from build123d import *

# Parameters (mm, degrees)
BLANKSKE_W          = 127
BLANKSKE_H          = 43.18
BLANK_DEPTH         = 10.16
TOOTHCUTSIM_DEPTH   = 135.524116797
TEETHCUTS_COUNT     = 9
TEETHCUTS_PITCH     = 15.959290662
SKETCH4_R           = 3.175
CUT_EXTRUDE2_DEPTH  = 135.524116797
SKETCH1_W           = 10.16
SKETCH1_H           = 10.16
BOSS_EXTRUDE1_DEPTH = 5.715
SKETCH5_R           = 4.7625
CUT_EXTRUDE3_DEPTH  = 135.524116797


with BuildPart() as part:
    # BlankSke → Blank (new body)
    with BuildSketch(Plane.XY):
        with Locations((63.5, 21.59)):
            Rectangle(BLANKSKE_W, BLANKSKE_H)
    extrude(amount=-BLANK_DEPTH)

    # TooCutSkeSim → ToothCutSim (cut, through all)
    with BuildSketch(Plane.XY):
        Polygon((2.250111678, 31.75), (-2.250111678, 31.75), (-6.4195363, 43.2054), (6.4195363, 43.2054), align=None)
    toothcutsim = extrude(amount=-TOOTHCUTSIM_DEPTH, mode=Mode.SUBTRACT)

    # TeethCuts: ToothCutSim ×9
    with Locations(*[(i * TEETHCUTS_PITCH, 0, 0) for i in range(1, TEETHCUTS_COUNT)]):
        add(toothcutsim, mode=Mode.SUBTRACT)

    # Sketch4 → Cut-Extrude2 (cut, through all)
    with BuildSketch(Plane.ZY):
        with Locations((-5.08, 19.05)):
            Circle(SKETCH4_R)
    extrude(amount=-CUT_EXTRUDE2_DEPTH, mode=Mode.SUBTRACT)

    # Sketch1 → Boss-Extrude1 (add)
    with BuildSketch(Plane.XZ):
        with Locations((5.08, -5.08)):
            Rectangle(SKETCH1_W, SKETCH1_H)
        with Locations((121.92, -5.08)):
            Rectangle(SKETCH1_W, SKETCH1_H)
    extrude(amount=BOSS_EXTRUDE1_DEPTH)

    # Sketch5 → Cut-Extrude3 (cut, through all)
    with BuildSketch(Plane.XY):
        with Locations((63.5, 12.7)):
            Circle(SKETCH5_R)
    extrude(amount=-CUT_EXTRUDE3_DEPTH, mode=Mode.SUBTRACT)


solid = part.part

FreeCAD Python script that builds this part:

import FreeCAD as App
import Part
import Sketcher
from FreeCAD import Vector
Q = App.Units.Quantity

doc = App.newDocument("Part")
body = doc.addObject("PartDesign::Body", "Body")

# Sketch on XY plane
sketch1 = body.newObject("Sketcher::SketchObject", "Sketch")
sketch1.AttachmentSupport = (doc.getObject("XY_Plane"), [""])
sketch1.MapMode = "FlatFace"
sketch1.addGeometry(Part.LineSegment(Vector(0, 43, 0), Vector(0, 0, 0)), False)
sketch1.addGeometry(Part.LineSegment(Vector(0, 0, 0), Vector(127, 0, 0)), False)
sketch1.addGeometry(Part.LineSegment(Vector(127, 0, 0), Vector(127, 43, 0)), False)
sketch1.addGeometry(Part.LineSegment(Vector(127, 43, 0), Vector(0, 43, 0)), False)
sketch1.addConstraint(Sketcher.Constraint("Coincident", 0, 2, 1, 1))
sketch1.addConstraint(Sketcher.Constraint("Coincident", 1, 2, 2, 1))
sketch1.addConstraint(Sketcher.Constraint("Coincident", 2, 2, 3, 1))
sketch1.addConstraint(Sketcher.Constraint("Coincident", 3, 2, 0, 1))
sketch1.addConstraint(Sketcher.Constraint("Vertical", 0))
sketch1.addConstraint(Sketcher.Constraint("Horizontal", 1))
sketch1.addConstraint(Sketcher.Constraint("Vertical", 2))
sketch1.addConstraint(Sketcher.Constraint("Horizontal", 3))
sketch1.addConstraint(Sketcher.Constraint("Coincident", 0, 2, -1, 1))
sketch1.addConstraint(Sketcher.Constraint("DistanceX", 1, 1, 1, 2, Q("5 in")))
sketch1.addConstraint(Sketcher.Constraint("DistanceY", 0, 2, 0, 1, Q("1.7 in")))
pad1 = body.newObject("PartDesign::Pad", "Pad")
pad1.Profile = sketch1
pad1.Length = Q("0.4 in")
pad1.Reversed = True

# Sketch on XY plane
sketch2 = body.newObject("Sketcher::SketchObject", "Sketch001")
sketch2.AttachmentSupport = (doc.getObject("XY_Plane"), [""])
sketch2.MapMode = "FlatFace"
sketch2.addGeometry(Part.LineSegment(Vector(-2.3, 31.8, 0), Vector(2.3, 31.8, 0)), False)
sketch2.addGeometry(Part.LineSegment(Vector(2.3, 31.8, 0), Vector(6.4, 43.2, 0)), False)
sketch2.addGeometry(Part.LineSegment(Vector(6.4, 43.2, 0), Vector(-6.4, 43.2, 0)), False)
sketch2.addGeometry(Part.LineSegment(Vector(-6.4, 43.2, 0), Vector(-2.3, 31.8, 0)), False)
sketch2.addConstraint(Sketcher.Constraint("Coincident", 0, 2, 1, 1))
sketch2.addConstraint(Sketcher.Constraint("Coincident", 1, 2, 2, 1))
sketch2.addConstraint(Sketcher.Constraint("Coincident", 2, 2, 3, 1))
sketch2.addConstraint(Sketcher.Constraint("Coincident", 3, 2, 0, 1))
sketch2.addConstraint(Sketcher.Constraint("Horizontal", 0))
sketch2.addConstraint(Sketcher.Constraint("Horizontal", 2))
sketch2.addConstraint(Sketcher.Constraint("Equal", 1, 3))
sketch2.addConstraint(Sketcher.Constraint("Angle", 1, Q("70 deg")))
sketch2.addConstraint(Sketcher.Constraint("DistanceY", -1, 1, 0, 2, Q("1.25 in")))
sketch2.addConstraint(Sketcher.Constraint("DistanceY", -1, 1, 1, 2, Q("1.701 in")))
sketch2.addConstraint(Sketcher.Constraint("DistanceX", 0, 1, 0, 2, 4.500223))
sketch2.addConstraint(Sketcher.Constraint("DistanceX", -1, 1, 0, 2, 2.250112))
pocket1 = body.newObject("PartDesign::Pocket", "Pocket")
pocket1.Profile = sketch2
pocket1.Type = "ThroughAll"
doc.recompute()

linearpattern = body.newObject("PartDesign::LinearPattern", "LinearPattern")
linearpattern.Originals = [pocket1]
linearpattern.Direction = (doc.getObject("X_Axis"), [""])
linearpattern.Mode = "offset"
linearpattern.Offset = 15.959291
linearpattern.Occurrences = 9
body.Tip = linearpattern

# Sketch on YZ plane
sketch3 = body.newObject("Sketcher::SketchObject", "Sketch002")
sketch3.AttachmentSupport = (doc.getObject("YZ_Plane"), [""])
sketch3.MapMode = "FlatFace"
sketch3.addGeometry(Part.Circle(Vector(19.1, -5.1, 0), Vector(0, 0, 1), 3.2), False)
sketch3.addConstraint(Sketcher.Constraint("Diameter", 0, Q("0.25 in")))
sketch3.addConstraint(Sketcher.Constraint("DistanceY", 0, 3, -1, 1, Q("0.2 in")))
sketch3.addConstraint(Sketcher.Constraint("DistanceX", -1, 1, 0, 3, Q("0.75 in")))
pocket2 = body.newObject("PartDesign::Pocket", "Pocket001")
pocket2.Profile = sketch3
pocket2.Type = "ThroughAll"
pocket2.Reversed = True

# Sketch on XZ plane
sketch4 = body.newObject("Sketcher::SketchObject", "Sketch003")
sketch4.AttachmentSupport = (doc.getObject("XZ_Plane"), [""])
sketch4.MapMode = "FlatFace"
sketch4.addGeometry(Part.LineSegment(Vector(0, 0, 0), Vector(0, -10, 0)), False)
sketch4.addGeometry(Part.LineSegment(Vector(0, -10, 0), Vector(10, -10, 0)), False)
sketch4.addGeometry(Part.LineSegment(Vector(10, -10, 0), Vector(10, 0, 0)), False)
sketch4.addGeometry(Part.LineSegment(Vector(10, 0, 0), Vector(0, 0, 0)), False)
sketch4.addGeometry(Part.LineSegment(Vector(117, 0, 0), Vector(117, -10, 0)), False)
sketch4.addGeometry(Part.LineSegment(Vector(117, -10, 0), Vector(127, -10, 0)), False)
sketch4.addGeometry(Part.LineSegment(Vector(127, -10, 0), Vector(127, 0, 0)), False)
sketch4.addGeometry(Part.LineSegment(Vector(127, 0, 0), Vector(117, 0, 0)), False)
sketch4.addConstraint(Sketcher.Constraint("Coincident", 0, 2, 1, 1))
sketch4.addConstraint(Sketcher.Constraint("Coincident", 1, 2, 2, 1))
sketch4.addConstraint(Sketcher.Constraint("Coincident", 2, 2, 3, 1))
sketch4.addConstraint(Sketcher.Constraint("Coincident", 3, 2, 0, 1))
sketch4.addConstraint(Sketcher.Constraint("Coincident", 4, 2, 5, 1))
sketch4.addConstraint(Sketcher.Constraint("Coincident", 5, 2, 6, 1))
sketch4.addConstraint(Sketcher.Constraint("Coincident", 6, 2, 7, 1))
sketch4.addConstraint(Sketcher.Constraint("Coincident", 7, 2, 4, 1))
sketch4.addConstraint(Sketcher.Constraint("Vertical", 0))
sketch4.addConstraint(Sketcher.Constraint("Horizontal", 1))
sketch4.addConstraint(Sketcher.Constraint("Vertical", 2))
sketch4.addConstraint(Sketcher.Constraint("Horizontal", 3))
sketch4.addConstraint(Sketcher.Constraint("Vertical", 4))
sketch4.addConstraint(Sketcher.Constraint("Horizontal", 5))
sketch4.addConstraint(Sketcher.Constraint("Vertical", 6))
sketch4.addConstraint(Sketcher.Constraint("Horizontal", 7))
sketch4.addConstraint(Sketcher.Constraint("Coincident", 3, 2, -1, 1))
sketch4.addConstraint(Sketcher.Constraint("PointOnObject", 6, 2, -1))
sketch4.addConstraint(Sketcher.Constraint("Horizontal", 1, 2, 4, 2))
sketch4.addConstraint(Sketcher.Constraint("Equal", 3, 5))
sketch4.addConstraint(Sketcher.Constraint("Equal", 7, 0))
sketch4.addConstraint(Sketcher.Constraint("DistanceX", 1, 1, 1, 2, Q("0.4 in")))
sketch4.addConstraint(Sketcher.Constraint("DistanceX", -1, 1, 5, 2, Q("5 in")))
pad2 = body.newObject("PartDesign::Pad", "Pad001")
pad2.Profile = sketch4
pad2.Length = Q("0.225 in")

# Sketch on XY plane
sketch5 = body.newObject("Sketcher::SketchObject", "Sketch004")
sketch5.AttachmentSupport = (doc.getObject("XY_Plane"), [""])
sketch5.MapMode = "FlatFace"
sketch5.addGeometry(Part.Circle(Vector(63.5, 12.7, 0), Vector(0, 0, 1), 4.8), False)
sketch5.addConstraint(Sketcher.Constraint("Diameter", 0, Q("0.375 in")))
sketch5.addConstraint(Sketcher.Constraint("DistanceX", -1, 1, 0, 3, Q("2.5 in")))
sketch5.addConstraint(Sketcher.Constraint("DistanceY", -1, 1, 0, 3, Q("0.5 in")))
pocket3 = body.newObject("PartDesign::Pocket", "Pocket002")
pocket3.Profile = sketch5
pocket3.Type = "ThroughAll"

doc.recompute()
